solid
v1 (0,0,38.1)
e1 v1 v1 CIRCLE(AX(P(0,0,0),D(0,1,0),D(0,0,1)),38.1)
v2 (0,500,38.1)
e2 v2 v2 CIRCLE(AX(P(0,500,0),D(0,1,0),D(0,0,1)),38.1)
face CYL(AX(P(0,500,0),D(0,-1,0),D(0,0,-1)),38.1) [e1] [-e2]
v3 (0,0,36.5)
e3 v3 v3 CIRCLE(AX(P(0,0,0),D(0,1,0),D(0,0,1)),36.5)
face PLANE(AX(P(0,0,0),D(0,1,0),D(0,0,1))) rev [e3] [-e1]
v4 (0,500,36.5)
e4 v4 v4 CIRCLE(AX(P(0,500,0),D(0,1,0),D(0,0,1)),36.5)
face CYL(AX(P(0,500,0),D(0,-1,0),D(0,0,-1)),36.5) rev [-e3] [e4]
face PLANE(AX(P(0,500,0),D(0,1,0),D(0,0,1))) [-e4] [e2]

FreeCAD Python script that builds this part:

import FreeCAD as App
import Part
import Sketcher
from FreeCAD import Vector
Q = App.Units.Quantity

doc = App.newDocument("Part")
body = doc.addObject("PartDesign::Body", "Body")

sketch1 = body.newObject("Sketcher::SketchObject", "Sketch")
sketch1.AttachmentSupport = (doc.getObject("XZ_Plane"), [""])
sketch1.MapMode = "FlatFace"
sketch1.addGeometry([
    Part.Circle(Vector(0, 0, 0), Vector(0, 0, 1), 38),
    Part.Circle(Vector(0, 0, 0), Vector(0, 0, 1), 36),
], False)
sketch1.addConstraint([
    Sketcher.Constraint("Coincident", 0, 3, -1, 1),
    Sketcher.Constraint("Coincident", 1, 3, -1, 1),
    Sketcher.Constraint("Diameter", 1, Q("73 mm")),
    Sketcher.Constraint("Diameter", 0, Q("76.2 mm")),
])
pad1 = body.newObject("PartDesign::Pad", "Pad")
pad1.Profile = sketch1
pad1.Length = 500
pad1.Reversed = True

doc.recompute()
